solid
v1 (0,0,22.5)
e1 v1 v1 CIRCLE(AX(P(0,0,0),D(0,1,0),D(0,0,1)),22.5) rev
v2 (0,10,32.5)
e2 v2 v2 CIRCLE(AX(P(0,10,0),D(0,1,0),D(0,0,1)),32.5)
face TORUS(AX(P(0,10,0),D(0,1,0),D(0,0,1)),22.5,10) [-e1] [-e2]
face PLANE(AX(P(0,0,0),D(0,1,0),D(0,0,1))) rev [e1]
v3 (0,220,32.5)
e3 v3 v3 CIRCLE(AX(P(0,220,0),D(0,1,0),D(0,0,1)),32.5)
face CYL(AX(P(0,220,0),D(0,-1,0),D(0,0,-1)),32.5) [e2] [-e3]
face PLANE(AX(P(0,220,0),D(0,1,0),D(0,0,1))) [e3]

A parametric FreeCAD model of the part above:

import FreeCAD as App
import Part
import Sketcher

V = App.Vector
Q = App.Units.Quantity


def edges_at(feature, points):
    """Names of the edges that pass closest to the given points."""
    edges = feature.Shape.Edges
    near = lambda p: min(range(len(edges)), key=lambda i: edges[i].distToShape(Part.Vertex(*p))[0])
    return sorted({f"Edge{near(p) + 1}" for p in points})

doc = App.newDocument("Part")
body = doc.addObject("PartDesign::Body", "Body")

sketch1 = doc.addObject("Sketcher::SketchObject", "Sketch")
body.addObject(sketch1)
sketch1.AttachmentSupport = (doc.XZ_Plane, [""])
sketch1.MapMode = "FlatFace"
sketch1.addGeometry(Part.Circle(V(0, 0, 0), V(0, 0, 1), 32.5), False)
sketch1.addConstraint(Sketcher.Constraint("Coincident", 0, 3, -1, 1))
sketch1.addConstraint(Sketcher.Constraint("Diameter", 0, Q("65 mm")))
pad1 = doc.addObject("PartDesign::Pad", "Pad")
body.addObject(pad1)
pad1.Profile = sketch1
pad1.Length = 220
pad1.Reversed = True
doc.recompute()

fillet = doc.addObject("PartDesign::Fillet", "Fillet")
body.addObject(fillet)
fillet.Base = (pad1, edges_at(pad1, [(0, 0, -32.5)]))
fillet.Radius = 10

doc.recompute()
